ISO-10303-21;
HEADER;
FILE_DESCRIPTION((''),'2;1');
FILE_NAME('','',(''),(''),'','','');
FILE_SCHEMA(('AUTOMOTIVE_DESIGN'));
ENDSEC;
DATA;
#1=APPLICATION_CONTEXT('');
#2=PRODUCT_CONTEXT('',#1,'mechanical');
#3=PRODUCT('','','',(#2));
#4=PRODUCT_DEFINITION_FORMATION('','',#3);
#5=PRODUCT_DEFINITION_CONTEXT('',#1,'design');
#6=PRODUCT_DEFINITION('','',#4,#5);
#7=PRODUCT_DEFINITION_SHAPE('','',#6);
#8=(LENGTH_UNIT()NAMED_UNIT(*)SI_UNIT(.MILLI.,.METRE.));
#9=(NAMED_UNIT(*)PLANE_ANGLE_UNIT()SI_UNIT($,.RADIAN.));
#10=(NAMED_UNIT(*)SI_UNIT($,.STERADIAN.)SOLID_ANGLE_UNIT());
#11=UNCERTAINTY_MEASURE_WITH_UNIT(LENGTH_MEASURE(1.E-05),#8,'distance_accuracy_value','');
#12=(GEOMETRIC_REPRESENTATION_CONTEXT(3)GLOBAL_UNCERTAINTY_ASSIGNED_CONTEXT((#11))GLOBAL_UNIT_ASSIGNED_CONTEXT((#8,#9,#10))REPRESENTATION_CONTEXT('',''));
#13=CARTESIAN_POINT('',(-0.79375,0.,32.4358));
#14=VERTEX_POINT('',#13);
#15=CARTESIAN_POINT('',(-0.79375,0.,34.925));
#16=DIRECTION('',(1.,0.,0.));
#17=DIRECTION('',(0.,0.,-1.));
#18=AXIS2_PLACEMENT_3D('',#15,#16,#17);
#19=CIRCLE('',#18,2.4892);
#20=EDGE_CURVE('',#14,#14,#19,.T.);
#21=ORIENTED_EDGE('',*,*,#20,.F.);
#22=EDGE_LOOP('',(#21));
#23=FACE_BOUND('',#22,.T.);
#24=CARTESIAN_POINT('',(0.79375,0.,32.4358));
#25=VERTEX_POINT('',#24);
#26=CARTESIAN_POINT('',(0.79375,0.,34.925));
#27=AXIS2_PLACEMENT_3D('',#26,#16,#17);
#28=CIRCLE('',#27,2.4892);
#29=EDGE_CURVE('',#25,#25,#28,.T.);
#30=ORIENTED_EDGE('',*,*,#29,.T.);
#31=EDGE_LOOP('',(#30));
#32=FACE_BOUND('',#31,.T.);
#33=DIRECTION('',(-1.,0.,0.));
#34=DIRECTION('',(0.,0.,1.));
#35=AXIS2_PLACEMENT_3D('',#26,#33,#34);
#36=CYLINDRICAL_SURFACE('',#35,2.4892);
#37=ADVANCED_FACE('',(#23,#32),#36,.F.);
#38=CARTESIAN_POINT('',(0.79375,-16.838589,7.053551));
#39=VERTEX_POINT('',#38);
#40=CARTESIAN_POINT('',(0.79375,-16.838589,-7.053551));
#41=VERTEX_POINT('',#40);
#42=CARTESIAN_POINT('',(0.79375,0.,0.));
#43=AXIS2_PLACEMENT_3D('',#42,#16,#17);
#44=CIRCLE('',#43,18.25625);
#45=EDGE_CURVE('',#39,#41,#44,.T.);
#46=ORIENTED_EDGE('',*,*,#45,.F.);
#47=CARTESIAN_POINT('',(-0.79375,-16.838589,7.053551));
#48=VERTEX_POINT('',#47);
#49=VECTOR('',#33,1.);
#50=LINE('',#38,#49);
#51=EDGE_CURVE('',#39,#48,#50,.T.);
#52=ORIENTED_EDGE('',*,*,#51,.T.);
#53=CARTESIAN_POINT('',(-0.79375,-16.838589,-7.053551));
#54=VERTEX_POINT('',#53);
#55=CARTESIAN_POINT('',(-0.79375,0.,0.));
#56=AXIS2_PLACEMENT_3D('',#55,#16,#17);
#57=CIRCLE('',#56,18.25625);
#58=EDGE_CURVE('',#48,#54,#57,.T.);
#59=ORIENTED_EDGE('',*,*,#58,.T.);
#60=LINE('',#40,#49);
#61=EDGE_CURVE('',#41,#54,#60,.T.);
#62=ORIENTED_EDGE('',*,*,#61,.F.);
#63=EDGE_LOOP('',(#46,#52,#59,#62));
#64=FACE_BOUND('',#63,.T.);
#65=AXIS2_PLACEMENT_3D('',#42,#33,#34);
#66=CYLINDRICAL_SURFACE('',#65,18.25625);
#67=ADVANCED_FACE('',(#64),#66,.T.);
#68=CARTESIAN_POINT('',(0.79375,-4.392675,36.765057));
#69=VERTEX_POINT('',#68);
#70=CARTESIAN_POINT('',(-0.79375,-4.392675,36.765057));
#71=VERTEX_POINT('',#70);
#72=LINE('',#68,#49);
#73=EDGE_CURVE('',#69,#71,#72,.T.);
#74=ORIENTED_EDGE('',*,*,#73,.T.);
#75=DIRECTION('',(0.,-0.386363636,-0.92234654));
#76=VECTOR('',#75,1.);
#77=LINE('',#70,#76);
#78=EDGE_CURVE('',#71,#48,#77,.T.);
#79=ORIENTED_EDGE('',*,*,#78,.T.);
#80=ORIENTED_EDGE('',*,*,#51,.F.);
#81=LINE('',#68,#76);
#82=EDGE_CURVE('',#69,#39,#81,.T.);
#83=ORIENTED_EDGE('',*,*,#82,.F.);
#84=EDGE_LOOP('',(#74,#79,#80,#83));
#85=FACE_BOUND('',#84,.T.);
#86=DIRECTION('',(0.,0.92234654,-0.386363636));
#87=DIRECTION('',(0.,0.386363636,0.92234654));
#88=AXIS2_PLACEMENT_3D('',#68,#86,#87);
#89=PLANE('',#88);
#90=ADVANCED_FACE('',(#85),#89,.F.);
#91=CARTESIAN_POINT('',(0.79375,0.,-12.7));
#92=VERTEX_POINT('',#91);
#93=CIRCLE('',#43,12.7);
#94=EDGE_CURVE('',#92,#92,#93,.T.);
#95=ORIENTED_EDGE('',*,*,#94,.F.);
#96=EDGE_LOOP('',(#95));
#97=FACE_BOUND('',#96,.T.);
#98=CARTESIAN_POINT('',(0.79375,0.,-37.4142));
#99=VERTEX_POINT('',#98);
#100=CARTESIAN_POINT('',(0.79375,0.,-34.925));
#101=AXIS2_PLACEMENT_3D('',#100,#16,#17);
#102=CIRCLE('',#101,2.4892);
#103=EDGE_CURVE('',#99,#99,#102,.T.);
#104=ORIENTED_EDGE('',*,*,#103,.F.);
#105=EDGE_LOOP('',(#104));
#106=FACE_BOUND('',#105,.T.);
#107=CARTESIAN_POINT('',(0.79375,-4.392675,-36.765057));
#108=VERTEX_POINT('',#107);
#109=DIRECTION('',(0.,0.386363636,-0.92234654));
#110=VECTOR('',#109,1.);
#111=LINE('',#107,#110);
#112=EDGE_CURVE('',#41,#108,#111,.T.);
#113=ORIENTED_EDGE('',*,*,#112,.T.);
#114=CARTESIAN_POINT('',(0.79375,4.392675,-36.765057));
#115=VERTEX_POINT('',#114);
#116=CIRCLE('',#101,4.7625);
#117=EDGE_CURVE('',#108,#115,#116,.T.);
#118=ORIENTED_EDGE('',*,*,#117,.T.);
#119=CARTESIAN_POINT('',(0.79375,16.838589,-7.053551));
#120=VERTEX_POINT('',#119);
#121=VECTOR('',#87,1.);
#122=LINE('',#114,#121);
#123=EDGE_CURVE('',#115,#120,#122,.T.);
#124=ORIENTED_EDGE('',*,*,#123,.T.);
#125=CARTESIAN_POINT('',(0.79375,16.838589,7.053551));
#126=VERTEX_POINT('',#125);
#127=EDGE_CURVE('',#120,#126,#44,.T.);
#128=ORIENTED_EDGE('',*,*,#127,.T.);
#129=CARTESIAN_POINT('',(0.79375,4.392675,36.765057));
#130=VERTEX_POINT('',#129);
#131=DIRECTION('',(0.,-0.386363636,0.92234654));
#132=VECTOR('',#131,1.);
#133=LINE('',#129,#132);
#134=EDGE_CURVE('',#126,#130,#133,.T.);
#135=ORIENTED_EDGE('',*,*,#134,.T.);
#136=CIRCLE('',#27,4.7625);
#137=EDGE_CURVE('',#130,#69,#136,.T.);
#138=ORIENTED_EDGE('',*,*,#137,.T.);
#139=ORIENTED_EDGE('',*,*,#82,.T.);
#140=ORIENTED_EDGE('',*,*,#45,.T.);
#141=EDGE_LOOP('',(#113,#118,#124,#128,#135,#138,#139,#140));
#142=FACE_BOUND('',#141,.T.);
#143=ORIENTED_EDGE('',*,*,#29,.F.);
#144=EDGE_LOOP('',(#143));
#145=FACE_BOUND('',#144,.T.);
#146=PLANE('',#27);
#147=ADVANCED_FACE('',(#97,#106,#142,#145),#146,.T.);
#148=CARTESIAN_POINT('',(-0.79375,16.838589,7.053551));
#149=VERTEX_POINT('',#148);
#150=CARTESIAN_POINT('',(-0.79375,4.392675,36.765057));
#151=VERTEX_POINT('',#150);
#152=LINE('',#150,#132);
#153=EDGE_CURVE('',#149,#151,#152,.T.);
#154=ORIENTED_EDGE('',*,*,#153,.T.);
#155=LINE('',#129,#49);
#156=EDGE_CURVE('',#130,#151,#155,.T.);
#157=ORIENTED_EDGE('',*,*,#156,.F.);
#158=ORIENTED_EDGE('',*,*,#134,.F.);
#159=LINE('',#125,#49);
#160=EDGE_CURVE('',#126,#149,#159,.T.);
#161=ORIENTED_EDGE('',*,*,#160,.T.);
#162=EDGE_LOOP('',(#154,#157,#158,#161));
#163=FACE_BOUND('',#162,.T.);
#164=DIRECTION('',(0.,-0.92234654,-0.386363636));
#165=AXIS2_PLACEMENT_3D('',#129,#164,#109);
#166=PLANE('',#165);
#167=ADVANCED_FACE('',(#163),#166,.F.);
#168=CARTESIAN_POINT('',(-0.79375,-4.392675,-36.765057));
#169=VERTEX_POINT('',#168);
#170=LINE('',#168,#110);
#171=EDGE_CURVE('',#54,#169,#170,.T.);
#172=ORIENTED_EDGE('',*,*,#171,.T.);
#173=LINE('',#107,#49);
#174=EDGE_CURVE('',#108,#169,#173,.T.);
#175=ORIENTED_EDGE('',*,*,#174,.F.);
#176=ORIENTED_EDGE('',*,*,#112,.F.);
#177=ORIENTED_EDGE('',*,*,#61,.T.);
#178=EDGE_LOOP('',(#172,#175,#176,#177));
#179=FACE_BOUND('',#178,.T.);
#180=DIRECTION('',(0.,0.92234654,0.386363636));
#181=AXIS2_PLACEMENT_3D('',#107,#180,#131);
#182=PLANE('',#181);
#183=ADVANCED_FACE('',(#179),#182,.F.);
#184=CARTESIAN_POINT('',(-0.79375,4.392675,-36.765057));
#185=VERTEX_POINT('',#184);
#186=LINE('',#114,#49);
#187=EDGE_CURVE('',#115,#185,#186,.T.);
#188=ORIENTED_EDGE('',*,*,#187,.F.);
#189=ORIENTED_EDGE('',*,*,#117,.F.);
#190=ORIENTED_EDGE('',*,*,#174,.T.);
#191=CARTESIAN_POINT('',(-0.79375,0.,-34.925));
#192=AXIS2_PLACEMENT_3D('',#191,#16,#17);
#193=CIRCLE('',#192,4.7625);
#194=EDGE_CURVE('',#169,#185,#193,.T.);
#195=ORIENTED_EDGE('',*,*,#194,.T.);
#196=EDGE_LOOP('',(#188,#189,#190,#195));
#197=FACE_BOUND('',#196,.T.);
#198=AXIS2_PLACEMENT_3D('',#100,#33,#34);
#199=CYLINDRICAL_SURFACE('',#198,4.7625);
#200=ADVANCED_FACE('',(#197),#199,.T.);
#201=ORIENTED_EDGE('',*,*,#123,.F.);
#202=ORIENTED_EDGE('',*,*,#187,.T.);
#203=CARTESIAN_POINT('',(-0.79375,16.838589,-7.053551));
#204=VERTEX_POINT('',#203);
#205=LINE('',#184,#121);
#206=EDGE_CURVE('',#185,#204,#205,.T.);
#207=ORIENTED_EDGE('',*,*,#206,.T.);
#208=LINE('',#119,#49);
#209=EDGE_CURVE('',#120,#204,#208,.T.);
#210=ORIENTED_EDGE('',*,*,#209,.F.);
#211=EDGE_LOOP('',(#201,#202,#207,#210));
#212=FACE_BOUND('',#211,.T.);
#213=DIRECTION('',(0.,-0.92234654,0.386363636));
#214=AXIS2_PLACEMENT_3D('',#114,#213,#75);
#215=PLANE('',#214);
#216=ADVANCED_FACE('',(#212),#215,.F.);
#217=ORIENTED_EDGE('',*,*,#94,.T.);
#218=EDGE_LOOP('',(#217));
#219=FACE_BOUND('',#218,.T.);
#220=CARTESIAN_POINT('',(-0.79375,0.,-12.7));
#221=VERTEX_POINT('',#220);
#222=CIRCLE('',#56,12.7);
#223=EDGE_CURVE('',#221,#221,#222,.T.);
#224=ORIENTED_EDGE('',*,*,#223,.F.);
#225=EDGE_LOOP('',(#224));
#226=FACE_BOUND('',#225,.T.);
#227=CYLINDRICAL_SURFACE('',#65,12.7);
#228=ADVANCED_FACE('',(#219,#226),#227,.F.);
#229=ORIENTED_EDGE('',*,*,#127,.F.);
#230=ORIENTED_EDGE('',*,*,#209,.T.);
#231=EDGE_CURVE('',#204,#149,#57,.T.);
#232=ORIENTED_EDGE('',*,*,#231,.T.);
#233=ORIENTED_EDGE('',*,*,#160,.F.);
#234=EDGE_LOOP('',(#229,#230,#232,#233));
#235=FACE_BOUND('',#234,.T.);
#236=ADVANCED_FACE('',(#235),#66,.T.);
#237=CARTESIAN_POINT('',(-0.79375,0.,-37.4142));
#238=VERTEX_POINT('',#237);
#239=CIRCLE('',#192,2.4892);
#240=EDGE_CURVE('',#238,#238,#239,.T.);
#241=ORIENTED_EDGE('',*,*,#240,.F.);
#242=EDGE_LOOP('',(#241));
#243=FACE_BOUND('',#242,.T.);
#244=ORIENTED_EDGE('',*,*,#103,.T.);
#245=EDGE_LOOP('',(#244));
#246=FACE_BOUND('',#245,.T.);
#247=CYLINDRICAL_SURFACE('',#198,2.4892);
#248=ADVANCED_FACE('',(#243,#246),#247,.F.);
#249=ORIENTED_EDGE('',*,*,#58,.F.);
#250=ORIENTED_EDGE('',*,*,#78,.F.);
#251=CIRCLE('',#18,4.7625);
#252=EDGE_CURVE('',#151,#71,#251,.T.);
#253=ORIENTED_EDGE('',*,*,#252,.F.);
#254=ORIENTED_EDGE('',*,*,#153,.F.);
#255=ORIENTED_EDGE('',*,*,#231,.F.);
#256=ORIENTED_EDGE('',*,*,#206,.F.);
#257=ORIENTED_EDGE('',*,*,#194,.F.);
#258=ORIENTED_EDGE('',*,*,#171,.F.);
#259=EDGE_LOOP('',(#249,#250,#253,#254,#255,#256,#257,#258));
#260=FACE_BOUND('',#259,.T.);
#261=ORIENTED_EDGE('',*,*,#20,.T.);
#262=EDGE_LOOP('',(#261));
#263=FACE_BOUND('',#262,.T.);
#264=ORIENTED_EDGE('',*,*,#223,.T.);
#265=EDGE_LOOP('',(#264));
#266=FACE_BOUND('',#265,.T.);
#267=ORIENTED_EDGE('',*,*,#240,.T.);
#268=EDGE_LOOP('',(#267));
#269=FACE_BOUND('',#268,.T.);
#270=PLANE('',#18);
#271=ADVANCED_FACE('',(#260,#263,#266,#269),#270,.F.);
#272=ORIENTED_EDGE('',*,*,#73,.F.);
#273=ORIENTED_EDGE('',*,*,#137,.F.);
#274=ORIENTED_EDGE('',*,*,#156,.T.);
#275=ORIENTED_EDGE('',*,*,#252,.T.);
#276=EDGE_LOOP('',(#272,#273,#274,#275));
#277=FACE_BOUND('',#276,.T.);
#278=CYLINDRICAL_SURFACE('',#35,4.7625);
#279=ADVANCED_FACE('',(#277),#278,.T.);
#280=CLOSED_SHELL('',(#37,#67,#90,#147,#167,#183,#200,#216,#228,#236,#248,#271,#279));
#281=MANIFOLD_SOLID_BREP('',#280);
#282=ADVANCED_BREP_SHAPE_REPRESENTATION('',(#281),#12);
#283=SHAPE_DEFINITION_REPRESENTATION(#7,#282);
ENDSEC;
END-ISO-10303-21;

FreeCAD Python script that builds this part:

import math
import FreeCAD as App
import Part
import Sketcher

V = App.Vector
Q = App.Units.Quantity

doc = App.newDocument("Part")
body = doc.addObject("PartDesign::Body", "Body")

# Sketch on YZ plane
sketch1 = body.newObject("Sketcher::SketchObject", "Sketch")
sketch1.AttachmentSupport = (doc.getObject("YZ_Plane"), [""])
sketch1.MapMode = "FlatFace"
sketch1.addGeometry([
    Part.LineSegment(V(-4.4, 36.8, 0), V(-16.8, 7.1, 0)),  # 0
    Part.ArcOfCircle(Part.Circle(V(0, 0, 0), V(0, 0, 1), 18.3), math.radians(157), math.radians(203)),  # 1
    Part.LineSegment(V(-16.8, -7.1, 0), V(-4.4, -36.8, 0)),  # 2
    Part.ArcOfCircle(Part.Circle(V(0, -34.9, 0), V(0, 0, 1), 4.8), math.radians(-157), math.radians(-23)),  # 3
    Part.LineSegment(V(4.4, -36.8, 0), V(16.8, -7.1, 0)),  # 4
    Part.ArcOfCircle(Part.Circle(V(0, 0, 0), V(0, 0, 1), 18.3), math.radians(-23), math.radians(23)),  # 5
    Part.LineSegment(V(16.8, 7.1, 0), V(4.4, 36.8, 0)),  # 6
    Part.ArcOfCircle(Part.Circle(V(0, 34.9, 0), V(0, 0, 1), 4.8), math.radians(23), math.radians(157)),  # 7
    Part.Circle(V(0, 34.9, 0), V(0, 0, 1), 2.5),  # 8
    Part.Circle(V(0, 0, 0), V(0, 0, 1), 12.7),  # 9
    Part.Circle(V(0, -34.9, 0), V(0, 0, 1), 2.5),  # 10
], False)
sketch1.addConstraint([
    Sketcher.Constraint("Tangent", 0, 2, 1, 1),
    Sketcher.Constraint("Tangent", 1, 2, 2, 1),
    Sketcher.Constraint("Tangent", 2, 2, 3, 1),
    Sketcher.Constraint("Tangent", 3, 2, 4, 1),
    Sketcher.Constraint("Tangent", 4, 2, 5, 1),
    Sketcher.Constraint("Tangent", 5, 2, 6, 1),
    Sketcher.Constraint("Tangent", 6, 2, 7, 1),
    Sketcher.Constraint("Tangent", 7, 2, 0, 1),
    Sketcher.Constraint("Coincident", 1, 3, -1, 1),
    Sketcher.Constraint("Coincident", 5, 3, -1, 1),
    Sketcher.Constraint("Coincident", 9, 3, -1, 1),
    Sketcher.Constraint("Coincident", 8, 3, 7, 3),
    Sketcher.Constraint("Coincident", 10, 3, 3, 3),
    Sketcher.Constraint("Equal", 1, 5),
    Sketcher.Constraint("Equal", 3, 7),
    Sketcher.Constraint("Equal", 8, 10),
    Sketcher.Constraint("Symmetric", 3, 3, 7, 3, -1, 1),
    Sketcher.Constraint("PointOnObject", 3, 3, -2),
    Sketcher.Constraint("Diameter", 9, Q("1 in")),
    Sketcher.Constraint("Diameter", 8, Q("0.196 in")),
    Sketcher.Constraint("Radius", 1, Q("0.71875 in")),
    Sketcher.Constraint("Radius", 3, Q("0.1875 in")),
    Sketcher.Constraint("DistanceY", 3, 3, 7, 3, Q("2.75 in")),
])
pad1 = body.newObject("PartDesign::Pad", "Pad")
pad1.Profile = sketch1
pad1.Length = Q("0.0625 in")
pad1.Midplane = True

doc.recompute()
